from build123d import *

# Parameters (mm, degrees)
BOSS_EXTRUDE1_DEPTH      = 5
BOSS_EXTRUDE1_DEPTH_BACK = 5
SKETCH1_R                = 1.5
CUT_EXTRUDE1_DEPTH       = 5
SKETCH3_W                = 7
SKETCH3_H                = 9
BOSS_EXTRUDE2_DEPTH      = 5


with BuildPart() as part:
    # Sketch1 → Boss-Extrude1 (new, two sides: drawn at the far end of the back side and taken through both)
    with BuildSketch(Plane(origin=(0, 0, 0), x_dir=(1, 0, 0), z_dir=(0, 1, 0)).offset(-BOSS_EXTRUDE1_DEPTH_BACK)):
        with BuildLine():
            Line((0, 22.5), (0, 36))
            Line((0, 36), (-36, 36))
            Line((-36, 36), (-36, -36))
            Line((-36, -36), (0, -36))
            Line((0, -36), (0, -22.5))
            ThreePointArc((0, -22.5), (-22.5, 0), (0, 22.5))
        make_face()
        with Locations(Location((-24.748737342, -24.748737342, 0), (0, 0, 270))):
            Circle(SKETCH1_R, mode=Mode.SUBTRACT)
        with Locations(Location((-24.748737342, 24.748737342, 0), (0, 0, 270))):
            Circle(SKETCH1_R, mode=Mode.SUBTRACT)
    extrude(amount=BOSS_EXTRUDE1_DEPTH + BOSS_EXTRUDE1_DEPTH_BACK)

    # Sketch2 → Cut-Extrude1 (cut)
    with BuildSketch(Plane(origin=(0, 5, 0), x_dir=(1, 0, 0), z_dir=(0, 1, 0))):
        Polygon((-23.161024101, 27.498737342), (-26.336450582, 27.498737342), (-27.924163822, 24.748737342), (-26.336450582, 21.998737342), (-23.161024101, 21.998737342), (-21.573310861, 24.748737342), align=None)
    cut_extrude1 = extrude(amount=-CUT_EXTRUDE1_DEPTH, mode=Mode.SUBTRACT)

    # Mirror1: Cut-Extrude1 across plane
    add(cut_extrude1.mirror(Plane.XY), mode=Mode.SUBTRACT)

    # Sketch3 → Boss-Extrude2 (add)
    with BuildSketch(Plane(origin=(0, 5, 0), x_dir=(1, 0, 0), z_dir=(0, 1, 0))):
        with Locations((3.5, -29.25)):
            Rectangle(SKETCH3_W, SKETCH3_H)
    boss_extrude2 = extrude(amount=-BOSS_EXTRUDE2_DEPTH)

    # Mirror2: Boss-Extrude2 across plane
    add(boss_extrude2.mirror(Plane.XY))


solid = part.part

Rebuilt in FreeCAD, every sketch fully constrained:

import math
import FreeCAD as App
import Part
import Sketcher

V = App.Vector
Q = App.Units.Quantity


def add_polygon(sketch, points):
    """Adds a closed chain of lines whose ends are joined by coincident constraints."""
    first, n = sketch.GeometryCount, len(points)
    for a, b in zip(points, points[1:] + points[:1]):
        sketch.addGeometry(Part.LineSegment(App.Vector(*a, 0), App.Vector(*b, 0)), False)
    for i in range(n):
        sketch.addConstraint(Sketcher.Constraint("Coincident", first + i, 2, first + (i + 1) % n, 1))

doc = App.newDocument("Part")
body = doc.addObject("PartDesign::Body", "Body")

sketch1 = doc.addObject("Sketcher::SketchObject", "Sketch")
body.addObject(sketch1)
sketch1.AttachmentSupport = (doc.XZ_Plane, [""])
sketch1.MapMode = "FlatFace"
sketch1.addGeometry([
    Part.LineSegment(V(0, -22.5, 0), V(0, -36, 0)),
    Part.LineSegment(V(0, -36, 0), V(-36, -36, 0)),
    Part.LineSegment(V(-36, -36, 0), V(-36, 36, 0)),
    Part.LineSegment(V(-36, 36, 0), V(0, 36, 0)),
    Part.LineSegment(V(0, 36, 0), V(0, 22.5, 0)),
    Part.ArcOfCircle(Part.Circle(V(0, 0, 0), V(0, 0, 1), 22.5), math.radians(90), math.radians(270)),
    Part.Circle(V(-24.748737, 24.748737, 0), V(0, 0, 1), 1.5),
    Part.Circle(V(-24.748737, -24.748737, 0), V(0, 0, 1), 1.5),
], False)
sketch1.addConstraint([
    Sketcher.Constraint("Coincident", 0, 2, 1, 1),
    Sketcher.Constraint("Coincident", 1, 2, 2, 1),
    Sketcher.Constraint("Coincident", 2, 2, 3, 1),
    Sketcher.Constraint("Coincident", 3, 2, 4, 1),
    Sketcher.Constraint("Coincident", 4, 2, 5, 1),
    Sketcher.Constraint("Coincident", 5, 2, 0, 1),
    Sketcher.Constraint("Vertical", 0),
    Sketcher.Constraint("Horizontal", 1),
    Sketcher.Constraint("Vertical", 2),
    Sketcher.Constraint("Horizontal", 3),
    Sketcher.Constraint("Vertical", 4),
    Sketcher.Constraint("Coincident", 5, 3, -1, 1),
    Sketcher.Constraint("Equal", 6, 7),
    Sketcher.Constraint("Symmetric", 0, 2, 3, 2, -1, 1),
    Sketcher.Constraint("Symmetric", 6, 3, 7, 3, -1),
    Sketcher.Constraint("PointOnObject", 0, 2, -2),
    Sketcher.Constraint("Diameter", 6, Q("3 mm")),
    Sketcher.Constraint("Radius", 5, Q("22.5 mm")),
    Sketcher.Constraint("DistanceX", 1, 2, 1, 1, Q("36 mm")),
    Sketcher.Constraint("DistanceY", 2, 1, 2, 2, Q("72 mm")),
    Sketcher.Constraint("DistanceX", 6, 3, -1, 1, Q("24.748737 mm")),
    Sketcher.Constraint("DistanceY", -1, 1, 6, 3, Q("24.748737 mm")),
])
pad1 = doc.addObject("PartDesign::Pad", "Pad")
body.addObject(pad1)
pad1.Profile = sketch1
pad1.Type = "TwoLengths"
pad1.Length = 5
pad1.Length2 = 5
pad1.Reversed = True

sketch2 = doc.addObject("Sketcher::SketchObject", "Sketch001")
body.addObject(sketch2)
sketch2.AttachmentSupport = (doc.XZ_Plane, [""])
sketch2.MapMode = "FlatFace"
sketch2.AttachmentOffset = App.Placement(V(0, 0, -5), App.Rotation())
add_polygon(sketch2, [(-23.161024, -27.498737), (-26.336451, -27.498737), (-27.924164, -24.748737), (-26.336451, -21.998737), (-23.161024, -21.998737), (-21.573311, -24.748737)])
sketch2.addConstraint([
    Sketcher.Constraint("Horizontal", 0),
    Sketcher.Constraint("Horizontal", 3),
    Sketcher.Constraint("Parallel", 1, 4),
    Sketcher.Constraint("Parallel", 2, 5),
    Sketcher.Constraint("Horizontal", 1, 2, 4, 2),
    Sketcher.Constraint("Vertical", 0, 2, 2, 2),
    Sketcher.Constraint("Vertical", 3, 2, 5, 2),
    Sketcher.Constraint("Angle", 1, Q("120 deg")),
    Sketcher.Constraint("DistanceY", 0, 2, 2, 2, Q("5.5 mm")),
    Sketcher.Constraint("DistanceX", 0, 2, 0, 1, Q("3.175426 mm")),
    Sketcher.Constraint("DistanceX", 0, 2, -1, 1, Q("26.336451 mm")),
    Sketcher.Constraint("DistanceY", 0, 2, -1, 1, Q("27.498737 mm")),
])
pocket1 = doc.addObject("PartDesign::Pocket", "Pocket")
body.addObject(pocket1)
pocket1.Profile = sketch2
pocket1.Length = 5
pocket1.Reversed = True
doc.recompute()

mirrored = doc.addObject("PartDesign::Mirrored", "Mirrored")
body.addObject(mirrored)
mirrored.Originals = [pocket1]
mirrored.MirrorPlane = (doc.XY_Plane, [""])
body.Tip = mirrored

sketch3 = doc.addObject("Sketcher::SketchObject", "Sketch002")
body.addObject(sketch3)
sketch3.AttachmentSupport = (doc.XZ_Plane, [""])
sketch3.MapMode = "FlatFace"
sketch3.AttachmentOffset = App.Placement(V(0, 0, -5), App.Rotation())
add_polygon(sketch3, [(0, 24.75), (0, 33.75), (7, 33.75), (7, 24.75)])
sketch3.addConstraint([
    Sketcher.Constraint("Vertical", 0),
    Sketcher.Constraint("Horizontal", 1),
    Sketcher.Constraint("Vertical", 2),
    Sketcher.Constraint("Horizontal", 3),
    Sketcher.Constraint("PointOnObject", 0, 2, -2),
    Sketcher.Constraint("DistanceX", 1, 1, 1, 2, Q("7 mm")),
    Sketcher.Constraint("DistanceY", 0, 1, 0, 2, Q("9 mm")),
    Sketcher.Constraint("DistanceY", -1, 1, 0, 2, Q("33.75 mm")),
])
pad2 = doc.addObject("PartDesign::Pad", "Pad001")
body.addObject(pad2)
pad2.Profile = sketch3
pad2.Length = 5
doc.recompute()

mirrored2 = doc.addObject("PartDesign::Mirrored", "Mirrored001")
body.addObject(mirrored2)
mirrored2.Originals = [pad2]
mirrored2.MirrorPlane = (doc.XY_Plane, [""])
body.Tip = mirrored2

doc.recompute()
